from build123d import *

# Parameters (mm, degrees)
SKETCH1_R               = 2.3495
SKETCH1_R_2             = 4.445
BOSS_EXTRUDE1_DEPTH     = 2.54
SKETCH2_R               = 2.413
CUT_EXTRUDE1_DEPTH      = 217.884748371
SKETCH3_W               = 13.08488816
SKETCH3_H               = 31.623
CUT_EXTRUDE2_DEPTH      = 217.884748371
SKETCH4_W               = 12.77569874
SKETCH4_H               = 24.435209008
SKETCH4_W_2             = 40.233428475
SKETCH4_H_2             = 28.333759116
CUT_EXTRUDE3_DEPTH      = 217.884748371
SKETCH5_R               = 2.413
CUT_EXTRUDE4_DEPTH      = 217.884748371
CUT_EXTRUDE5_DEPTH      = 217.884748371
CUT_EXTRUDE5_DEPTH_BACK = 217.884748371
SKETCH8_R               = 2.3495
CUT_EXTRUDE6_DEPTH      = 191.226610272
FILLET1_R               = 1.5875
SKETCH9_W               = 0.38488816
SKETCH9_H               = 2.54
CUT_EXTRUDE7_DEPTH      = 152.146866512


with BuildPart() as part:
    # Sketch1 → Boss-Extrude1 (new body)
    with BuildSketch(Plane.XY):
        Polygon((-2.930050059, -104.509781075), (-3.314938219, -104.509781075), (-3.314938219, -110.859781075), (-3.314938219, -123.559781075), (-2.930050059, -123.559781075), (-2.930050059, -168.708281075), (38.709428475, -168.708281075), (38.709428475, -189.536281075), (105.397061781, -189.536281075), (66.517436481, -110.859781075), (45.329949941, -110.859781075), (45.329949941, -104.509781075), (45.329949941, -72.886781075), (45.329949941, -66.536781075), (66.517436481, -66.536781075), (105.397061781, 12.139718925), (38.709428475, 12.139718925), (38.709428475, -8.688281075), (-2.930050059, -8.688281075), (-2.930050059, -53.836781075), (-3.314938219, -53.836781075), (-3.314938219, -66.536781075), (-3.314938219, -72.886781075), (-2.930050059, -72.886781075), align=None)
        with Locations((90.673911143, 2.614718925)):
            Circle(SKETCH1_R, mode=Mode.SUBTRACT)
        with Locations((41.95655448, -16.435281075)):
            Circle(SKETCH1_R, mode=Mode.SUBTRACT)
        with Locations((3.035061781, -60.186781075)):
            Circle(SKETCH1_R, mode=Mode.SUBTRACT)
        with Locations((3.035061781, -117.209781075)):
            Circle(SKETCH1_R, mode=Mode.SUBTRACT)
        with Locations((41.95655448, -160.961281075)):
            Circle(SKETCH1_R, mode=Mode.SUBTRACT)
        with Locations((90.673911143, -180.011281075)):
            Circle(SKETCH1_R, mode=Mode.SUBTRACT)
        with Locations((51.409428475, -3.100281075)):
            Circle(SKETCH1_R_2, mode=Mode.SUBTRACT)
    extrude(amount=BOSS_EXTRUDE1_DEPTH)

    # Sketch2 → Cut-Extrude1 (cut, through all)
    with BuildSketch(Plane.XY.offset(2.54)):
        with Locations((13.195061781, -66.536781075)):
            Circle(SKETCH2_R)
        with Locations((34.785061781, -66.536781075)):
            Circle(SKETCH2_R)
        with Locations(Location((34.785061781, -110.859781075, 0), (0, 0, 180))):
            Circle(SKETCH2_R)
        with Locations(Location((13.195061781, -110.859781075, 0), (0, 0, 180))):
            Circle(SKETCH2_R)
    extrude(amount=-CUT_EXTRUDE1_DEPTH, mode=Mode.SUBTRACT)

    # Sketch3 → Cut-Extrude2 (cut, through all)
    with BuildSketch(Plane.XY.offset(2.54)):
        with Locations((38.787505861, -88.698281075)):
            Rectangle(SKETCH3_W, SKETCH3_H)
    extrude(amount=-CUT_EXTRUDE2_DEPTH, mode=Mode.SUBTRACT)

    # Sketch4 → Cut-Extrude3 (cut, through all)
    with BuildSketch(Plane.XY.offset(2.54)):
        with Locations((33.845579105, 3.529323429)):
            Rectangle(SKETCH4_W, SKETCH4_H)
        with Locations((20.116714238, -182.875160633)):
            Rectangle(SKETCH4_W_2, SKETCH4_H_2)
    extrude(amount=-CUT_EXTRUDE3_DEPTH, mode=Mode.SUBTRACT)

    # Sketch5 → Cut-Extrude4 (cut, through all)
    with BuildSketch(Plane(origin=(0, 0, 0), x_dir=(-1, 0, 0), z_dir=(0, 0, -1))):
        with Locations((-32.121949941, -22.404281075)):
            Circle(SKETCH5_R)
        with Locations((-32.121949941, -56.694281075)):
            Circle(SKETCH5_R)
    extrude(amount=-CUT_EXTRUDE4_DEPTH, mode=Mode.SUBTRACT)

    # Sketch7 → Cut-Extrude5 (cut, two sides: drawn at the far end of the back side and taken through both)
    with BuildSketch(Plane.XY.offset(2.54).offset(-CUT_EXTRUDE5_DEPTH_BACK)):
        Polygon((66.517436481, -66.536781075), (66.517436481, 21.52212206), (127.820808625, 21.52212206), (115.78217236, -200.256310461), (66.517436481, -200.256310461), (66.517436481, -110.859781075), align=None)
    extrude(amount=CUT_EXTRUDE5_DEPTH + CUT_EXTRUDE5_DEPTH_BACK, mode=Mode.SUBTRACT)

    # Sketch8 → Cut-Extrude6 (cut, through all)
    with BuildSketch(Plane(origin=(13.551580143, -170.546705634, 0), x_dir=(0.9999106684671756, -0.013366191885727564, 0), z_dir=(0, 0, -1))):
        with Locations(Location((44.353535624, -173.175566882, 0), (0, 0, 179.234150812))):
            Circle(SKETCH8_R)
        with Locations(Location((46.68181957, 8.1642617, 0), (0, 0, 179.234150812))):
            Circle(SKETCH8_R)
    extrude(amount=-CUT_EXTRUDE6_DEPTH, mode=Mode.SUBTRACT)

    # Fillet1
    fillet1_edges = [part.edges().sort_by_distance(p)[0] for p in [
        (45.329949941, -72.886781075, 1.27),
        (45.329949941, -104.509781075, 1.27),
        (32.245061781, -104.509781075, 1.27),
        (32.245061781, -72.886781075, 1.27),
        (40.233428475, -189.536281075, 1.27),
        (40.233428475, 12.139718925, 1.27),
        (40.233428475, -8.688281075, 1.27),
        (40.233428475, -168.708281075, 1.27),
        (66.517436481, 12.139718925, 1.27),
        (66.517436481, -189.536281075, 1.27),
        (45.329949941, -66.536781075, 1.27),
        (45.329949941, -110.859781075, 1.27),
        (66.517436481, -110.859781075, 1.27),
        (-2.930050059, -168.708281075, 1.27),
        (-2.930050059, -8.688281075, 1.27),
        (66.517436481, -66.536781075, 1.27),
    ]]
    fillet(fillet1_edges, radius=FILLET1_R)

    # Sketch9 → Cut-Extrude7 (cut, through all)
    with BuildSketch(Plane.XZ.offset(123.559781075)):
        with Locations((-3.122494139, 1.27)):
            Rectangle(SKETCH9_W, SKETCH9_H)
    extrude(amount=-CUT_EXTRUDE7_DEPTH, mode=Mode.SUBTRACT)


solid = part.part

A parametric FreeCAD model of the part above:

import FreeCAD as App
import Part
import Sketcher

V = App.Vector
Q = App.Units.Quantity


def edges_at(feature, points):
    """Names of the edges that pass closest to the given points."""
    edges = feature.Shape.Edges
    near = lambda p: min(range(len(edges)), key=lambda i: edges[i].distToShape(Part.Vertex(*p))[0])
    return sorted({f"Edge{near(p) + 1}" for p in points})

doc = App.newDocument("Part")
body = doc.addObject("PartDesign::Body", "Body")

sketch1 = body.newObject("Sketcher::SketchObject", "Sketch")
sketch1.AttachmentSupport = (doc.getObject("XY_Plane"), [""])
sketch1.MapMode = "FlatFace"
sketch1.addGeometry([
    Part.LineSegment(V(-2.93, -104.51, 0), V(-3.31, -104.51, 0)),
    Part.LineSegment(V(-3.31, -104.51, 0), V(-3.31, -123.56, 0)),
    Part.LineSegment(V(-3.31, -123.56, 0), V(-2.93, -123.56, 0)),
    Part.LineSegment(V(-2.93, -123.56, 0), V(-2.93, -168.71, 0)),
    Part.LineSegment(V(-2.93, -168.71, 0), V(38.71, -168.71, 0)),
    Part.LineSegment(V(38.71, -168.71, 0), V(38.71, -189.54, 0)),
    Part.LineSegment(V(38.71, -189.54, 0), V(105.4, -189.54, 0)),
    Part.LineSegment(V(105.4, -189.54, 0), V(66.52, -110.86, 0)),
    Part.LineSegment(V(66.52, -110.86, 0), V(45.33, -110.86, 0)),
    Part.LineSegment(V(45.33, -110.86, 0), V(45.33, -66.54, 0)),
    Part.LineSegment(V(45.33, -66.54, 0), V(66.52, -66.54, 0)),
    Part.LineSegment(V(66.52, -66.54, 0), V(105.4, 12.14, 0)),
    Part.LineSegment(V(105.4, 12.14, 0), V(38.71, 12.14, 0)),
    Part.LineSegment(V(38.71, 12.14, 0), V(38.71, -8.69, 0)),
    Part.LineSegment(V(38.71, -8.69, 0), V(-2.93, -8.69, 0)),
    Part.LineSegment(V(-2.93, -8.69, 0), V(-2.93, -53.84, 0)),
    Part.LineSegment(V(-2.93, -53.84, 0), V(-3.31, -53.84, 0)),
    Part.LineSegment(V(-3.31, -53.84, 0), V(-3.31, -72.89, 0)),
    Part.LineSegment(V(-3.31, -72.89, 0), V(-2.93, -72.89, 0)),
    Part.LineSegment(V(-2.93, -72.89, 0), V(-2.93, -104.51, 0)),
    Part.Circle(V(41.96, -160.96, 0), V(0, 0, 1), 2.35),
    Part.Circle(V(3.04, -117.21, 0), V(0, 0, 1), 2.35),
    Part.Circle(V(90.67, -180.01, 0), V(0, 0, 1), 2.35),
    Part.Circle(V(3.04, -60.19, 0), V(0, 0, 1), 2.35),
    Part.Circle(V(41.96, -16.44, 0), V(0, 0, 1), 2.35),
    Part.Circle(V(51.41, -3.1, 0), V(0, 0, 1), 4.45),
    Part.Circle(V(90.67, 2.61, 0), V(0, 0, 1), 2.35),
], False)
sketch1.addConstraint([
    Sketcher.Constraint("Coincident", 0, 2, 1, 1),
    Sketcher.Constraint("Coincident", 1, 2, 2, 1),
    Sketcher.Constraint("Coincident", 2, 2, 3, 1),
    Sketcher.Constraint("Coincident", 3, 2, 4, 1),
    Sketcher.Constraint("Coincident", 4, 2, 5, 1),
    Sketcher.Constraint("Coincident", 5, 2, 6, 1),
    Sketcher.Constraint("Coincident", 6, 2, 7, 1),
    Sketcher.Constraint("Coincident", 7, 2, 8, 1),
    Sketcher.Constraint("Coincident", 8, 2, 9, 1),
    Sketcher.Constraint("Coincident", 9, 2, 10, 1),
    Sketcher.Constraint("Coincident", 10, 2, 11, 1),
    Sketcher.Constraint("Coincident", 11, 2, 12, 1),
    Sketcher.Constraint("Coincident", 12, 2, 13, 1),
    Sketcher.Constraint("Coincident", 13, 2, 14, 1),
    Sketcher.Constraint("Coincident", 14, 2, 15, 1),
    Sketcher.Constraint("Coincident", 15, 2, 16, 1),
    Sketcher.Constraint("Coincident", 16, 2, 17, 1),
    Sketcher.Constraint("Coincident", 17, 2, 18, 1),
    Sketcher.Constraint("Coincident", 18, 2, 19, 1),
    Sketcher.Constraint("Coincident", 19, 2, 0, 1),
    Sketcher.Constraint("Horizontal", 0),
    Sketcher.Constraint("Vertical", 1),
    Sketcher.Constraint("Horizontal", 2),
    Sketcher.Constraint("Vertical", 3),
    Sketcher.Constraint("Horizontal", 4),
    Sketcher.Constraint("Vertical", 5),
    Sketcher.Constraint("Horizontal", 6),
    Sketcher.Constraint("Horizontal", 8),
    Sketcher.Constraint("Vertical", 9),
    Sketcher.Constraint("Horizontal", 10),
    Sketcher.Constraint("Horizontal", 12),
    Sketcher.Constraint("Vertical", 13),
    Sketcher.Constraint("Horizontal", 14),
    Sketcher.Constraint("Vertical", 15),
    Sketcher.Constraint("Horizontal", 16),
    Sketcher.Constraint("Vertical", 17),
    Sketcher.Constraint("Horizontal", 18),
    Sketcher.Constraint("Vertical", 19),
    Sketcher.Constraint("Equal", 20, 21),
    Sketcher.Constraint("Equal", 21, 22),
    Sketcher.Constraint("Equal", 22, 23),
    Sketcher.Constraint("Equal", 23, 24),
    Sketcher.Constraint("Equal", 24, 26),
    Sketcher.Constraint("Vertical", 21, 3, 23, 3),
    Sketcher.Constraint("Vertical", 20, 3, 24, 3),
    Sketcher.Constraint("Vertical", 22, 3, 26, 3),
    Sketcher.Constraint("Vertical", 7, 2, 10, 2),
    Sketcher.Constraint("Vertical", 6, 2, 11, 2),
    Sketcher.Constraint("Vertical", 5, 2, 12, 2),
    Sketcher.Constraint("Vertical", 3, 2, 14, 2),
    Sketcher.Constraint("Vertical", 1, 2, 16, 2),
    Sketcher.Constraint("Vertical", 15, 2, 18, 2),
    Sketcher.Constraint("Equal", 5, 13),
    Sketcher.Constraint("Equal", 3, 15),
    Sketcher.Constraint("Equal", 1, 17),
    Sketcher.Constraint("Equal", 7, 11),
    Sketcher.Constraint("Diameter", 25, Q("0.35 in")),
    Sketcher.Constraint("Diameter", 20, Q("0.185 in")),
    Sketcher.Constraint("DistanceY", 1, 2, 1, 1, Q("0.75 in")),
    Sketcher.Constraint("DistanceY", 5, 2, 5, 1, Q("0.82 in")),
    Sketcher.Constraint("DistanceY", 21, 3, 0, 2, Q("0.5 in")),
    Sketcher.Constraint("DistanceY", 2, 2, 7, 2, Q("0.5 in")),
    Sketcher.Constraint("DistanceX", 2, 2, 8, 2, Q("1.9 in")),
    Sketcher.Constraint("DistanceY", 25, 3, 11, 2, Q("0.6 in")),
    Sketcher.Constraint("DistanceX", 12, 2, 25, 3, Q("0.5 in")),
    Sketcher.Constraint("DistanceY", 17, 2, 23, 3, Q("0.5 in")),
    Sketcher.Constraint("DistanceY", 9, 1, 9, 2, Q("1.745 in")),
    Sketcher.Constraint("DistanceY", 22, 3, 20, 3, Q("0.75 in")),
    Sketcher.Constraint("DistanceY", 20, 3, 24, 3, Q("5.69 in")),
    Sketcher.Constraint("DistanceY", 24, 3, 26, 3, Q("0.75 in")),
    Sketcher.Constraint("DistanceX", 0, 2, 21, 3, Q("0.25 in")),
    Sketcher.Constraint("DistanceY", 3, 2, 3, 1, Q("1.7775 in")),
    Sketcher.Constraint("DistanceY", 24, 3, 25, 3, Q("0.525 in")),
    Sketcher.Constraint("DistanceX", 0, 2, 0, 1, 0.384888),
    Sketcher.Constraint("DistanceX", 4, 1, 4, 2, 41.639479),
    Sketcher.Constraint("DistanceX", 6, 1, 6, 2, 66.687633),
    Sketcher.Constraint("DistanceX", 8, 2, 8, 1, 21.187487),
    Sketcher.Constraint("DistanceY", 20, 3, -1, 1, 160.961281),
    Sketcher.Constraint("DistanceX", -1, 1, 21, 3, 3.035062),
    Sketcher.Constraint("DistanceX", -1, 1, 22, 3, 90.673911),
    Sketcher.Constraint("DistanceX", -1, 1, 20, 3, 41.956554),
])
pad1 = body.newObject("PartDesign::Pad", "Pad")
pad1.Profile = sketch1
pad1.Length = Q("0.1 in")

sketch2 = body.newObject("Sketcher::SketchObject", "Sketch001")
sketch2.AttachmentSupport = (doc.getObject("XY_Plane"), [""])
sketch2.MapMode = "FlatFace"
sketch2.AttachmentOffset = App.Placement(V(0, 0, 0.1 * 25.4), App.Rotation())
sketch2.addGeometry([
    Part.Circle(V(13.2, -66.5, 0), V(0, 0, 1), 2.4),
    Part.Circle(V(34.8, -66.5, 0), V(0, 0, 1), 2.4),
    Part.Circle(V(34.8, -110.9, 0), V(0, 0, 1), 2.4),
    Part.Circle(V(13.2, -110.9, 0), V(0, 0, 1), 2.4),
], False)
sketch2.addConstraint([
    Sketcher.Constraint("Equal", 0, 1),
    Sketcher.Constraint("Equal", 1, 2),
    Sketcher.Constraint("Equal", 2, 3),
    Sketcher.Constraint("Horizontal", 0, 3, 1, 3),
    Sketcher.Constraint("Horizontal", 2, 3, 3, 3),
    Sketcher.Constraint("Vertical", 1, 3, 2, 3),
    Sketcher.Constraint("Vertical", 0, 3, 3, 3),
    Sketcher.Constraint("Diameter", 0, Q("0.19 in")),
    Sketcher.Constraint("DistanceX", 0, 3, 1, 3, Q("0.85 in")),
    Sketcher.Constraint("DistanceY", 2, 3, 1, 3, Q("1.745 in")),
    Sketcher.Constraint("DistanceX", -1, 1, 0, 3, 13.195062),
    Sketcher.Constraint("DistanceY", 0, 3, -1, 1, 66.536781),
])
pocket1 = body.newObject("PartDesign::Pocket", "Pocket")
pocket1.Profile = sketch2
pocket1.Type = "ThroughAll"

sketch3 = body.newObject("Sketcher::SketchObject", "Sketch002")
sketch3.AttachmentSupport = (doc.getObject("XY_Plane"), [""])
sketch3.MapMode = "FlatFace"
sketch3.AttachmentOffset = App.Placement(V(0, 0, 0.1 * 25.4), App.Rotation())
sketch3.addGeometry([
    Part.LineSegment(V(32, -73, 0), V(32, -105, 0)),
    Part.LineSegment(V(32, -105, 0), V(45, -105, 0)),
    Part.LineSegment(V(45, -105, 0), V(45, -73, 0)),
    Part.LineSegment(V(45, -73, 0), V(32, -73, 0)),
], False)
sketch3.addConstraint([
    Sketcher.Constraint("Coincident", 0, 2, 1, 1),
    Sketcher.Constraint("Coincident", 1, 2, 2, 1),
    Sketcher.Constraint("Coincident", 2, 2, 3, 1),
    Sketcher.Constraint("Coincident", 3, 2, 0, 1),
    Sketcher.Constraint("Vertical", 0),
    Sketcher.Constraint("Horizontal", 1),
    Sketcher.Constraint("Vertical", 2),
    Sketcher.Constraint("Horizontal", 3),
    Sketcher.Constraint("DistanceY", 0, 2, 0, 1, Q("1.245 in")),
    Sketcher.Constraint("DistanceX", 1, 1, 1, 2, 13.084888),
    Sketcher.Constraint("DistanceX", -1, 1, 0, 2, 32.245062),
    Sketcher.Constraint("DistanceY", 0, 2, -1, 1, 104.509781),
])
pocket2 = body.newObject("PartDesign::Pocket", "Pocket001")
pocket2.Profile = sketch3
pocket2.Type = "ThroughAll"

sketch4 = body.newObject("Sketcher::SketchObject", "Sketch003")
sketch4.AttachmentSupport = (doc.getObject("XY_Plane"), [""])
sketch4.MapMode = "FlatFace"
sketch4.AttachmentOffset = App.Placement(V(0, 0, 0.1 * 25.4), App.Rotation())
sketch4.addGeometry([
    Part.LineSegment(V(27, 16, 0), V(27, -9, 0)),
    Part.LineSegment(V(27, -9, 0), V(40, -9, 0)),
    Part.LineSegment(V(40, -9, 0), V(40, 16, 0)),
    Part.LineSegment(V(40, 16, 0), V(27, 16, 0)),
    Part.LineSegment(V(0, -169, 0), V(0, -197, 0)),
    Part.LineSegment(V(0, -197, 0), V(40, -197, 0)),
    Part.LineSegment(V(40, -197, 0), V(40, -169, 0)),
    Part.LineSegment(V(40, -169, 0), V(0, -169, 0)),
], False)
sketch4.addConstraint([
    Sketcher.Constraint("Coincident", 0, 2, 1, 1),
    Sketcher.Constraint("Coincident", 1, 2, 2, 1),
    Sketcher.Constraint("Coincident", 2, 2, 3, 1),
    Sketcher.Constraint("Coincident", 3, 2, 0, 1),
    Sketcher.Constraint("Coincident", 4, 2, 5, 1),
    Sketcher.Constraint("Coincident", 5, 2, 6, 1),
    Sketcher.Constraint("Coincident", 6, 2, 7, 1),
    Sketcher.Constraint("Coincident", 7, 2, 4, 1),
    Sketcher.Constraint("Vertical", 0),
    Sketcher.Constraint("Horizontal", 1),
    Sketcher.Constraint("Vertical", 2),
    Sketcher.Constraint("Horizontal", 3),
    Sketcher.Constraint("Vertical", 4),
    Sketcher.Constraint("Horizontal", 5),
    Sketcher.Constraint("Vertical", 6),
    Sketcher.Constraint("Horizontal", 7),
    Sketcher.Constraint("PointOnObject", 4, 2, -2),
    Sketcher.Constraint("Vertical", 2, 2, 5, 2),
    Sketcher.Constraint("DistanceY", 6, 2, 1, 2, Q("6.3 in")),
    Sketcher.Constraint("DistanceX", 1, 1, 1, 2, 12.775699),
    Sketcher.Constraint("DistanceX", 5, 1, 5, 2, 40.233428),
    Sketcher.Constraint("DistanceY", 0, 2, 0, 1, 24.435209),
    Sketcher.Constraint("DistanceY", 4, 2, 4, 1, 28.333759),
    Sketcher.Constraint("DistanceY", 0, 2, -1, 1, 8.688281),
])
pocket3 = body.newObject("PartDesign::Pocket", "Pocket002")
pocket3.Profile = sketch4
pocket3.Type = "ThroughAll"

sketch5 = body.newObject("Sketcher::SketchObject", "Sketch004")
sketch5.AttachmentSupport = (doc.getObject("XY_Plane"), [""])
sketch5.MapMode = "FlatFace"
sketch5.addGeometry([
    Part.Circle(V(32.1, -22.4, 0), V(0, 0, 1), 2.4),
    Part.Circle(V(32.1, -56.7, 0), V(0, 0, 1), 2.4),
], False)
sketch5.addConstraint([
    Sketcher.Constraint("Equal", 0, 1),
    Sketcher.Constraint("Vertical", 0, 3, 1, 3),
    Sketcher.Constraint("Diameter", 0, Q("0.19 in")),
    Sketcher.Constraint("DistanceY", 1, 3, 0, 3, Q("1.35 in")),
    Sketcher.Constraint("DistanceX", -1, 1, 0, 3, 32.12195),
    Sketcher.Constraint("DistanceY", 0, 3, -1, 1, 22.404281),
])
pocket4 = body.newObject("PartDesign::Pocket", "Pocket003")
pocket4.Profile = sketch5
pocket4.Type = "ThroughAll"
pocket4.Reversed = True

sketch6 = body.newObject("Sketcher::SketchObject", "Sketch005")
sketch6.AttachmentSupport = (doc.getObject("XY_Plane"), [""])
sketch6.MapMode = "FlatFace"
sketch6.AttachmentOffset = App.Placement(V(0, 0, 0.1 * 25.4), App.Rotation())
sketch6.addGeometry([
    Part.LineSegment(V(67, 22, 0), V(67, -200, 0)),
    Part.LineSegment(V(67, -200, 0), V(116, -200, 0)),
    Part.LineSegment(V(116, -200, 0), V(128, 22, 0)),
    Part.LineSegment(V(128, 22, 0), V(67, 22, 0)),
], False)
sketch6.addConstraint([
    Sketcher.Constraint("Coincident", 0, 2, 1, 1),
    Sketcher.Constraint("Coincident", 1, 2, 2, 1),
    Sketcher.Constraint("Coincident", 2, 2, 3, 1),
    Sketcher.Constraint("Coincident", 3, 2, 0, 1),
    Sketcher.Constraint("Vertical", 0),
    Sketcher.Constraint("Horizontal", 1),
    Sketcher.Constraint("Horizontal", 3),
    Sketcher.Constraint("DistanceX", 1, 1, 1, 2, 49.264736),
    Sketcher.Constraint("DistanceX", 3, 2, 3, 1, 61.303372),
    Sketcher.Constraint("DistanceY", 0, 2, 0, 1, 221.778433),
    Sketcher.Constraint("DistanceY", 0, 2, -1, 1, 200.25631),
    Sketcher.Constraint("DistanceX", -1, 1, 2, 2, 127.820809),
])
pocket5 = body.newObject("PartDesign::Pocket", "Pocket004")
pocket5.Profile = sketch6
pocket5.Type = "ThroughAll"
pocket5.Midplane = True

sketch7 = body.newObject("Sketcher::SketchObject", "Sketch006")
sketch7.AttachmentSupport = (doc.getObject("XY_Plane"), [""])
sketch7.MapMode = "FlatFace"
sketch7.addGeometry([
    Part.Circle(V(60.2, 2, 0), V(0, 0, 1), 2.3),
    Part.Circle(V(60.1, -179.3, 0), V(0, 0, 1), 2.3),
], False)
sketch7.addConstraint([
    Sketcher.Constraint("Equal", 0, 1),
    Sketcher.Constraint("Diameter", 0, Q("0.185 in")),
    Sketcher.Constraint("DistanceX", -1, 1, 0, 3, 60.215851),
    Sketcher.Constraint("DistanceY", 1, 3, 0, 3, 181.354749),
    Sketcher.Constraint("DistanceY", -1, 1, 0, 3, 2.020553),
    Sketcher.Constraint("DistanceX", -1, 1, 1, 3, 60.120104),
])
pocket6 = body.newObject("PartDesign::Pocket", "Pocket005")
pocket6.Profile = sketch7
pocket6.Type = "ThroughAll"
pocket6.Reversed = True
doc.recompute()

fillet = body.newObject("PartDesign::Fillet", "Fillet")
fillet.Base = (pocket6, edges_at(pocket6, [
    (45.33, -72.887, 1.27),
    (45.33, -104.51, 1.27),
    (32.245, -104.51, 1.27),
    (32.245, -72.887, 1.27),
    (40.233, -189.536, 1.27),
    (40.233, 12.14, 1.27),
    (40.233, -8.688, 1.27),
    (40.233, -168.708, 1.27),
    (66.517, 12.14, 1.27),
    (66.517, -189.536, 1.27),
    (45.33, -66.537, 1.27),
    (45.33, -110.86, 1.27),
    (66.517, -110.86, 1.27),
    (-2.93, -168.708, 1.27),
    (-2.93, -8.688, 1.27),
    (66.517, -66.537, 1.27),
]))
fillet.Radius = Q("0.0625 in")

sketch8 = body.newObject("Sketcher::SketchObject", "Sketch007")
sketch8.AttachmentSupport = (doc.getObject("XZ_Plane"), [""])
sketch8.MapMode = "FlatFace"
sketch8.AttachmentOffset = App.Placement(V(0, 0, 123.559781), App.Rotation())
sketch8.addGeometry([
    Part.LineSegment(V(-3.31, 2.54, 0), V(-3.31, 0, 0)),
    Part.LineSegment(V(-3.31, 0, 0), V(-2.93, 0, 0)),
    Part.LineSegment(V(-2.93, 0, 0), V(-2.93, 2.54, 0)),
    Part.LineSegment(V(-2.93, 2.54, 0), V(-3.31, 2.54, 0)),
], False)
sketch8.addConstraint([
    Sketcher.Constraint("Coincident", 0, 2, 1, 1),
    Sketcher.Constraint("Coincident", 1, 2, 2, 1),
    Sketcher.Constraint("Coincident", 2, 2, 3, 1),
    Sketcher.Constraint("Coincident", 3, 2, 0, 1),
    Sketcher.Constraint("Vertical", 0),
    Sketcher.Constraint("Horizontal", 1),
    Sketcher.Constraint("Vertical", 2),
    Sketcher.Constraint("Horizontal", 3),
    Sketcher.Constraint("PointOnObject", 0, 2, -1),
    Sketcher.Constraint("DistanceY", 0, 2, 0, 1, Q("0.1 in")),
    Sketcher.Constraint("DistanceX", 1, 1, 1, 2, 0.384888),
    Sketcher.Constraint("DistanceX", 0, 2, -1, 1, 3.314938),
])
pocket7 = body.newObject("PartDesign::Pocket", "Pocket006")
pocket7.Profile = sketch8
pocket7.Type = "ThroughAll"

doc.recompute()
